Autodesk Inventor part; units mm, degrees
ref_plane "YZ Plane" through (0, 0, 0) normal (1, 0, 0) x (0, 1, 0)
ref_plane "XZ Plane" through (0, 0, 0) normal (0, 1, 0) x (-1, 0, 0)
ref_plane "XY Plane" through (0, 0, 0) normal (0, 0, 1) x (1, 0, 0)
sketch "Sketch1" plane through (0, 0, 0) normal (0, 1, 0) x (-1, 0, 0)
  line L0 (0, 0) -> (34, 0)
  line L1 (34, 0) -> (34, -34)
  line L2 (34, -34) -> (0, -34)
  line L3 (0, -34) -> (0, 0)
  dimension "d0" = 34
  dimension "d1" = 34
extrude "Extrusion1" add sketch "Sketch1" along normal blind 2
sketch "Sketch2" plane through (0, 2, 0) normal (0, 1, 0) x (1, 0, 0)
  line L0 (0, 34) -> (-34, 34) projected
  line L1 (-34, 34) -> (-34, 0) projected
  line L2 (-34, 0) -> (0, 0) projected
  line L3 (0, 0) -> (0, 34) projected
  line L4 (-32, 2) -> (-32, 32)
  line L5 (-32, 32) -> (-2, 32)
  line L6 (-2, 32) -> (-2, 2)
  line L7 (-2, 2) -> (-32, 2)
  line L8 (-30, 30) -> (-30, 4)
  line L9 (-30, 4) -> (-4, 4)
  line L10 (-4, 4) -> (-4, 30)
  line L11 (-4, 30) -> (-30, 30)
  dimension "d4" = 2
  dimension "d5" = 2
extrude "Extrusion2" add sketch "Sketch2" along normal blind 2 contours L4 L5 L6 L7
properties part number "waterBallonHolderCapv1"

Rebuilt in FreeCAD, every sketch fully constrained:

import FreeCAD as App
import Part
import Sketcher
Q = App.Units.Quantity

doc = App.newDocument("Part")
body = doc.addObject("PartDesign::Body", "Body")

sketch1 = body.newObject("Sketcher::SketchObject", "Sketch")
sketch1.AttachmentSupport = (doc.getObject("XZ_Plane"), [""])
sketch1.MapMode = "FlatFace"
sketch1.addGeometry([
    Part.LineSegment(App.Vector(-34, 0, 0), App.Vector(0, 0, 0)),
    Part.LineSegment(App.Vector(0, 0, 0), App.Vector(0, -34, 0)),
    Part.LineSegment(App.Vector(0, -34, 0), App.Vector(-34, -34, 0)),
    Part.LineSegment(App.Vector(-34, -34, 0), App.Vector(-34, 0, 0)),
], False)
sketch1.addConstraint([
    Sketcher.Constraint("Coincident", 0, 2, 1, 1),
    Sketcher.Constraint("Coincident", 1, 2, 2, 1),
    Sketcher.Constraint("Coincident", 2, 2, 3, 1),
    Sketcher.Constraint("Coincident", 3, 2, 0, 1),
    Sketcher.Constraint("Horizontal", 0),
    Sketcher.Constraint("Vertical", 1),
    Sketcher.Constraint("Horizontal", 2),
    Sketcher.Constraint("Vertical", 3),
    Sketcher.Constraint("Coincident", 0, 2, -1, 1),
    Sketcher.Constraint("Equal", 2, 1),
    Sketcher.Constraint("DistanceX", 0, 1, 0, 2, Q("34 mm")),
])
pad1 = body.newObject("PartDesign::Pad", "Pad")
pad1.Profile = sketch1
pad1.Length = 2
pad1.Reversed = True

sketch2 = body.newObject("Sketcher::SketchObject", "Sketch001")
sketch2.AttachmentSupport = (doc.getObject("XZ_Plane"), [""])
sketch2.MapMode = "FlatFace"
sketch2.AttachmentOffset = App.Placement(App.Vector(0, 0, -2), App.Rotation())
sketch2.addGeometry([
    Part.LineSegment(App.Vector(-32, -32, 0), App.Vector(-32, -2, 0)),
    Part.LineSegment(App.Vector(-32, -2, 0), App.Vector(-2, -2, 0)),
    Part.LineSegment(App.Vector(-2, -2, 0), App.Vector(-2, -32, 0)),
    Part.LineSegment(App.Vector(-2, -32, 0), App.Vector(-32, -32, 0)),
    Part.LineSegment(App.Vector(-30, -4, 0), App.Vector(-30, -30, 0)),
    Part.LineSegment(App.Vector(-30, -30, 0), App.Vector(-4, -30, 0)),
    Part.LineSegment(App.Vector(-4, -30, 0), App.Vector(-4, -4, 0)),
    Part.LineSegment(App.Vector(-4, -4, 0), App.Vector(-30, -4, 0)),
], False)
sketch2.addConstraint([
    Sketcher.Constraint("Coincident", 0, 2, 1, 1),
    Sketcher.Constraint("Coincident", 1, 2, 2, 1),
    Sketcher.Constraint("Coincident", 2, 2, 3, 1),
    Sketcher.Constraint("Coincident", 3, 2, 0, 1),
    Sketcher.Constraint("Coincident", 4, 2, 5, 1),
    Sketcher.Constraint("Coincident", 5, 2, 6, 1),
    Sketcher.Constraint("Coincident", 6, 2, 7, 1),
    Sketcher.Constraint("Coincident", 7, 2, 4, 1),
    Sketcher.Constraint("Vertical", 0),
    Sketcher.Constraint("Horizontal", 1),
    Sketcher.Constraint("Vertical", 2),
    Sketcher.Constraint("Horizontal", 3),
    Sketcher.Constraint("Vertical", 4),
    Sketcher.Constraint("Horizontal", 5),
    Sketcher.Constraint("Vertical", 6),
    Sketcher.Constraint("Horizontal", 7),
    Sketcher.Constraint("Equal", 3, 0),
    Sketcher.Constraint("Equal", 7, 4),
    Sketcher.Constraint("DistanceY", 0, 2, -1, 1, Q("2 mm")),
    Sketcher.Constraint("DistanceX", 1, 2, -1, 1, Q("2 mm")),
    Sketcher.Constraint("DistanceX", 3, 2, 4, 2, Q("2 mm")),
    Sketcher.Constraint("DistanceY", 3, 2, 4, 2, Q("2 mm")),
    Sketcher.Constraint("DistanceX", 5, 2, 2, 2, Q("2 mm")),
    Sketcher.Constraint("DistanceX", 1, 1, 1, 2, Q("30 mm")),
])
pad2 = body.newObject("PartDesign::Pad", "Pad001")
pad2.Profile = sketch2
pad2.Length = 2
pad2.Reversed = True

doc.recompute()
